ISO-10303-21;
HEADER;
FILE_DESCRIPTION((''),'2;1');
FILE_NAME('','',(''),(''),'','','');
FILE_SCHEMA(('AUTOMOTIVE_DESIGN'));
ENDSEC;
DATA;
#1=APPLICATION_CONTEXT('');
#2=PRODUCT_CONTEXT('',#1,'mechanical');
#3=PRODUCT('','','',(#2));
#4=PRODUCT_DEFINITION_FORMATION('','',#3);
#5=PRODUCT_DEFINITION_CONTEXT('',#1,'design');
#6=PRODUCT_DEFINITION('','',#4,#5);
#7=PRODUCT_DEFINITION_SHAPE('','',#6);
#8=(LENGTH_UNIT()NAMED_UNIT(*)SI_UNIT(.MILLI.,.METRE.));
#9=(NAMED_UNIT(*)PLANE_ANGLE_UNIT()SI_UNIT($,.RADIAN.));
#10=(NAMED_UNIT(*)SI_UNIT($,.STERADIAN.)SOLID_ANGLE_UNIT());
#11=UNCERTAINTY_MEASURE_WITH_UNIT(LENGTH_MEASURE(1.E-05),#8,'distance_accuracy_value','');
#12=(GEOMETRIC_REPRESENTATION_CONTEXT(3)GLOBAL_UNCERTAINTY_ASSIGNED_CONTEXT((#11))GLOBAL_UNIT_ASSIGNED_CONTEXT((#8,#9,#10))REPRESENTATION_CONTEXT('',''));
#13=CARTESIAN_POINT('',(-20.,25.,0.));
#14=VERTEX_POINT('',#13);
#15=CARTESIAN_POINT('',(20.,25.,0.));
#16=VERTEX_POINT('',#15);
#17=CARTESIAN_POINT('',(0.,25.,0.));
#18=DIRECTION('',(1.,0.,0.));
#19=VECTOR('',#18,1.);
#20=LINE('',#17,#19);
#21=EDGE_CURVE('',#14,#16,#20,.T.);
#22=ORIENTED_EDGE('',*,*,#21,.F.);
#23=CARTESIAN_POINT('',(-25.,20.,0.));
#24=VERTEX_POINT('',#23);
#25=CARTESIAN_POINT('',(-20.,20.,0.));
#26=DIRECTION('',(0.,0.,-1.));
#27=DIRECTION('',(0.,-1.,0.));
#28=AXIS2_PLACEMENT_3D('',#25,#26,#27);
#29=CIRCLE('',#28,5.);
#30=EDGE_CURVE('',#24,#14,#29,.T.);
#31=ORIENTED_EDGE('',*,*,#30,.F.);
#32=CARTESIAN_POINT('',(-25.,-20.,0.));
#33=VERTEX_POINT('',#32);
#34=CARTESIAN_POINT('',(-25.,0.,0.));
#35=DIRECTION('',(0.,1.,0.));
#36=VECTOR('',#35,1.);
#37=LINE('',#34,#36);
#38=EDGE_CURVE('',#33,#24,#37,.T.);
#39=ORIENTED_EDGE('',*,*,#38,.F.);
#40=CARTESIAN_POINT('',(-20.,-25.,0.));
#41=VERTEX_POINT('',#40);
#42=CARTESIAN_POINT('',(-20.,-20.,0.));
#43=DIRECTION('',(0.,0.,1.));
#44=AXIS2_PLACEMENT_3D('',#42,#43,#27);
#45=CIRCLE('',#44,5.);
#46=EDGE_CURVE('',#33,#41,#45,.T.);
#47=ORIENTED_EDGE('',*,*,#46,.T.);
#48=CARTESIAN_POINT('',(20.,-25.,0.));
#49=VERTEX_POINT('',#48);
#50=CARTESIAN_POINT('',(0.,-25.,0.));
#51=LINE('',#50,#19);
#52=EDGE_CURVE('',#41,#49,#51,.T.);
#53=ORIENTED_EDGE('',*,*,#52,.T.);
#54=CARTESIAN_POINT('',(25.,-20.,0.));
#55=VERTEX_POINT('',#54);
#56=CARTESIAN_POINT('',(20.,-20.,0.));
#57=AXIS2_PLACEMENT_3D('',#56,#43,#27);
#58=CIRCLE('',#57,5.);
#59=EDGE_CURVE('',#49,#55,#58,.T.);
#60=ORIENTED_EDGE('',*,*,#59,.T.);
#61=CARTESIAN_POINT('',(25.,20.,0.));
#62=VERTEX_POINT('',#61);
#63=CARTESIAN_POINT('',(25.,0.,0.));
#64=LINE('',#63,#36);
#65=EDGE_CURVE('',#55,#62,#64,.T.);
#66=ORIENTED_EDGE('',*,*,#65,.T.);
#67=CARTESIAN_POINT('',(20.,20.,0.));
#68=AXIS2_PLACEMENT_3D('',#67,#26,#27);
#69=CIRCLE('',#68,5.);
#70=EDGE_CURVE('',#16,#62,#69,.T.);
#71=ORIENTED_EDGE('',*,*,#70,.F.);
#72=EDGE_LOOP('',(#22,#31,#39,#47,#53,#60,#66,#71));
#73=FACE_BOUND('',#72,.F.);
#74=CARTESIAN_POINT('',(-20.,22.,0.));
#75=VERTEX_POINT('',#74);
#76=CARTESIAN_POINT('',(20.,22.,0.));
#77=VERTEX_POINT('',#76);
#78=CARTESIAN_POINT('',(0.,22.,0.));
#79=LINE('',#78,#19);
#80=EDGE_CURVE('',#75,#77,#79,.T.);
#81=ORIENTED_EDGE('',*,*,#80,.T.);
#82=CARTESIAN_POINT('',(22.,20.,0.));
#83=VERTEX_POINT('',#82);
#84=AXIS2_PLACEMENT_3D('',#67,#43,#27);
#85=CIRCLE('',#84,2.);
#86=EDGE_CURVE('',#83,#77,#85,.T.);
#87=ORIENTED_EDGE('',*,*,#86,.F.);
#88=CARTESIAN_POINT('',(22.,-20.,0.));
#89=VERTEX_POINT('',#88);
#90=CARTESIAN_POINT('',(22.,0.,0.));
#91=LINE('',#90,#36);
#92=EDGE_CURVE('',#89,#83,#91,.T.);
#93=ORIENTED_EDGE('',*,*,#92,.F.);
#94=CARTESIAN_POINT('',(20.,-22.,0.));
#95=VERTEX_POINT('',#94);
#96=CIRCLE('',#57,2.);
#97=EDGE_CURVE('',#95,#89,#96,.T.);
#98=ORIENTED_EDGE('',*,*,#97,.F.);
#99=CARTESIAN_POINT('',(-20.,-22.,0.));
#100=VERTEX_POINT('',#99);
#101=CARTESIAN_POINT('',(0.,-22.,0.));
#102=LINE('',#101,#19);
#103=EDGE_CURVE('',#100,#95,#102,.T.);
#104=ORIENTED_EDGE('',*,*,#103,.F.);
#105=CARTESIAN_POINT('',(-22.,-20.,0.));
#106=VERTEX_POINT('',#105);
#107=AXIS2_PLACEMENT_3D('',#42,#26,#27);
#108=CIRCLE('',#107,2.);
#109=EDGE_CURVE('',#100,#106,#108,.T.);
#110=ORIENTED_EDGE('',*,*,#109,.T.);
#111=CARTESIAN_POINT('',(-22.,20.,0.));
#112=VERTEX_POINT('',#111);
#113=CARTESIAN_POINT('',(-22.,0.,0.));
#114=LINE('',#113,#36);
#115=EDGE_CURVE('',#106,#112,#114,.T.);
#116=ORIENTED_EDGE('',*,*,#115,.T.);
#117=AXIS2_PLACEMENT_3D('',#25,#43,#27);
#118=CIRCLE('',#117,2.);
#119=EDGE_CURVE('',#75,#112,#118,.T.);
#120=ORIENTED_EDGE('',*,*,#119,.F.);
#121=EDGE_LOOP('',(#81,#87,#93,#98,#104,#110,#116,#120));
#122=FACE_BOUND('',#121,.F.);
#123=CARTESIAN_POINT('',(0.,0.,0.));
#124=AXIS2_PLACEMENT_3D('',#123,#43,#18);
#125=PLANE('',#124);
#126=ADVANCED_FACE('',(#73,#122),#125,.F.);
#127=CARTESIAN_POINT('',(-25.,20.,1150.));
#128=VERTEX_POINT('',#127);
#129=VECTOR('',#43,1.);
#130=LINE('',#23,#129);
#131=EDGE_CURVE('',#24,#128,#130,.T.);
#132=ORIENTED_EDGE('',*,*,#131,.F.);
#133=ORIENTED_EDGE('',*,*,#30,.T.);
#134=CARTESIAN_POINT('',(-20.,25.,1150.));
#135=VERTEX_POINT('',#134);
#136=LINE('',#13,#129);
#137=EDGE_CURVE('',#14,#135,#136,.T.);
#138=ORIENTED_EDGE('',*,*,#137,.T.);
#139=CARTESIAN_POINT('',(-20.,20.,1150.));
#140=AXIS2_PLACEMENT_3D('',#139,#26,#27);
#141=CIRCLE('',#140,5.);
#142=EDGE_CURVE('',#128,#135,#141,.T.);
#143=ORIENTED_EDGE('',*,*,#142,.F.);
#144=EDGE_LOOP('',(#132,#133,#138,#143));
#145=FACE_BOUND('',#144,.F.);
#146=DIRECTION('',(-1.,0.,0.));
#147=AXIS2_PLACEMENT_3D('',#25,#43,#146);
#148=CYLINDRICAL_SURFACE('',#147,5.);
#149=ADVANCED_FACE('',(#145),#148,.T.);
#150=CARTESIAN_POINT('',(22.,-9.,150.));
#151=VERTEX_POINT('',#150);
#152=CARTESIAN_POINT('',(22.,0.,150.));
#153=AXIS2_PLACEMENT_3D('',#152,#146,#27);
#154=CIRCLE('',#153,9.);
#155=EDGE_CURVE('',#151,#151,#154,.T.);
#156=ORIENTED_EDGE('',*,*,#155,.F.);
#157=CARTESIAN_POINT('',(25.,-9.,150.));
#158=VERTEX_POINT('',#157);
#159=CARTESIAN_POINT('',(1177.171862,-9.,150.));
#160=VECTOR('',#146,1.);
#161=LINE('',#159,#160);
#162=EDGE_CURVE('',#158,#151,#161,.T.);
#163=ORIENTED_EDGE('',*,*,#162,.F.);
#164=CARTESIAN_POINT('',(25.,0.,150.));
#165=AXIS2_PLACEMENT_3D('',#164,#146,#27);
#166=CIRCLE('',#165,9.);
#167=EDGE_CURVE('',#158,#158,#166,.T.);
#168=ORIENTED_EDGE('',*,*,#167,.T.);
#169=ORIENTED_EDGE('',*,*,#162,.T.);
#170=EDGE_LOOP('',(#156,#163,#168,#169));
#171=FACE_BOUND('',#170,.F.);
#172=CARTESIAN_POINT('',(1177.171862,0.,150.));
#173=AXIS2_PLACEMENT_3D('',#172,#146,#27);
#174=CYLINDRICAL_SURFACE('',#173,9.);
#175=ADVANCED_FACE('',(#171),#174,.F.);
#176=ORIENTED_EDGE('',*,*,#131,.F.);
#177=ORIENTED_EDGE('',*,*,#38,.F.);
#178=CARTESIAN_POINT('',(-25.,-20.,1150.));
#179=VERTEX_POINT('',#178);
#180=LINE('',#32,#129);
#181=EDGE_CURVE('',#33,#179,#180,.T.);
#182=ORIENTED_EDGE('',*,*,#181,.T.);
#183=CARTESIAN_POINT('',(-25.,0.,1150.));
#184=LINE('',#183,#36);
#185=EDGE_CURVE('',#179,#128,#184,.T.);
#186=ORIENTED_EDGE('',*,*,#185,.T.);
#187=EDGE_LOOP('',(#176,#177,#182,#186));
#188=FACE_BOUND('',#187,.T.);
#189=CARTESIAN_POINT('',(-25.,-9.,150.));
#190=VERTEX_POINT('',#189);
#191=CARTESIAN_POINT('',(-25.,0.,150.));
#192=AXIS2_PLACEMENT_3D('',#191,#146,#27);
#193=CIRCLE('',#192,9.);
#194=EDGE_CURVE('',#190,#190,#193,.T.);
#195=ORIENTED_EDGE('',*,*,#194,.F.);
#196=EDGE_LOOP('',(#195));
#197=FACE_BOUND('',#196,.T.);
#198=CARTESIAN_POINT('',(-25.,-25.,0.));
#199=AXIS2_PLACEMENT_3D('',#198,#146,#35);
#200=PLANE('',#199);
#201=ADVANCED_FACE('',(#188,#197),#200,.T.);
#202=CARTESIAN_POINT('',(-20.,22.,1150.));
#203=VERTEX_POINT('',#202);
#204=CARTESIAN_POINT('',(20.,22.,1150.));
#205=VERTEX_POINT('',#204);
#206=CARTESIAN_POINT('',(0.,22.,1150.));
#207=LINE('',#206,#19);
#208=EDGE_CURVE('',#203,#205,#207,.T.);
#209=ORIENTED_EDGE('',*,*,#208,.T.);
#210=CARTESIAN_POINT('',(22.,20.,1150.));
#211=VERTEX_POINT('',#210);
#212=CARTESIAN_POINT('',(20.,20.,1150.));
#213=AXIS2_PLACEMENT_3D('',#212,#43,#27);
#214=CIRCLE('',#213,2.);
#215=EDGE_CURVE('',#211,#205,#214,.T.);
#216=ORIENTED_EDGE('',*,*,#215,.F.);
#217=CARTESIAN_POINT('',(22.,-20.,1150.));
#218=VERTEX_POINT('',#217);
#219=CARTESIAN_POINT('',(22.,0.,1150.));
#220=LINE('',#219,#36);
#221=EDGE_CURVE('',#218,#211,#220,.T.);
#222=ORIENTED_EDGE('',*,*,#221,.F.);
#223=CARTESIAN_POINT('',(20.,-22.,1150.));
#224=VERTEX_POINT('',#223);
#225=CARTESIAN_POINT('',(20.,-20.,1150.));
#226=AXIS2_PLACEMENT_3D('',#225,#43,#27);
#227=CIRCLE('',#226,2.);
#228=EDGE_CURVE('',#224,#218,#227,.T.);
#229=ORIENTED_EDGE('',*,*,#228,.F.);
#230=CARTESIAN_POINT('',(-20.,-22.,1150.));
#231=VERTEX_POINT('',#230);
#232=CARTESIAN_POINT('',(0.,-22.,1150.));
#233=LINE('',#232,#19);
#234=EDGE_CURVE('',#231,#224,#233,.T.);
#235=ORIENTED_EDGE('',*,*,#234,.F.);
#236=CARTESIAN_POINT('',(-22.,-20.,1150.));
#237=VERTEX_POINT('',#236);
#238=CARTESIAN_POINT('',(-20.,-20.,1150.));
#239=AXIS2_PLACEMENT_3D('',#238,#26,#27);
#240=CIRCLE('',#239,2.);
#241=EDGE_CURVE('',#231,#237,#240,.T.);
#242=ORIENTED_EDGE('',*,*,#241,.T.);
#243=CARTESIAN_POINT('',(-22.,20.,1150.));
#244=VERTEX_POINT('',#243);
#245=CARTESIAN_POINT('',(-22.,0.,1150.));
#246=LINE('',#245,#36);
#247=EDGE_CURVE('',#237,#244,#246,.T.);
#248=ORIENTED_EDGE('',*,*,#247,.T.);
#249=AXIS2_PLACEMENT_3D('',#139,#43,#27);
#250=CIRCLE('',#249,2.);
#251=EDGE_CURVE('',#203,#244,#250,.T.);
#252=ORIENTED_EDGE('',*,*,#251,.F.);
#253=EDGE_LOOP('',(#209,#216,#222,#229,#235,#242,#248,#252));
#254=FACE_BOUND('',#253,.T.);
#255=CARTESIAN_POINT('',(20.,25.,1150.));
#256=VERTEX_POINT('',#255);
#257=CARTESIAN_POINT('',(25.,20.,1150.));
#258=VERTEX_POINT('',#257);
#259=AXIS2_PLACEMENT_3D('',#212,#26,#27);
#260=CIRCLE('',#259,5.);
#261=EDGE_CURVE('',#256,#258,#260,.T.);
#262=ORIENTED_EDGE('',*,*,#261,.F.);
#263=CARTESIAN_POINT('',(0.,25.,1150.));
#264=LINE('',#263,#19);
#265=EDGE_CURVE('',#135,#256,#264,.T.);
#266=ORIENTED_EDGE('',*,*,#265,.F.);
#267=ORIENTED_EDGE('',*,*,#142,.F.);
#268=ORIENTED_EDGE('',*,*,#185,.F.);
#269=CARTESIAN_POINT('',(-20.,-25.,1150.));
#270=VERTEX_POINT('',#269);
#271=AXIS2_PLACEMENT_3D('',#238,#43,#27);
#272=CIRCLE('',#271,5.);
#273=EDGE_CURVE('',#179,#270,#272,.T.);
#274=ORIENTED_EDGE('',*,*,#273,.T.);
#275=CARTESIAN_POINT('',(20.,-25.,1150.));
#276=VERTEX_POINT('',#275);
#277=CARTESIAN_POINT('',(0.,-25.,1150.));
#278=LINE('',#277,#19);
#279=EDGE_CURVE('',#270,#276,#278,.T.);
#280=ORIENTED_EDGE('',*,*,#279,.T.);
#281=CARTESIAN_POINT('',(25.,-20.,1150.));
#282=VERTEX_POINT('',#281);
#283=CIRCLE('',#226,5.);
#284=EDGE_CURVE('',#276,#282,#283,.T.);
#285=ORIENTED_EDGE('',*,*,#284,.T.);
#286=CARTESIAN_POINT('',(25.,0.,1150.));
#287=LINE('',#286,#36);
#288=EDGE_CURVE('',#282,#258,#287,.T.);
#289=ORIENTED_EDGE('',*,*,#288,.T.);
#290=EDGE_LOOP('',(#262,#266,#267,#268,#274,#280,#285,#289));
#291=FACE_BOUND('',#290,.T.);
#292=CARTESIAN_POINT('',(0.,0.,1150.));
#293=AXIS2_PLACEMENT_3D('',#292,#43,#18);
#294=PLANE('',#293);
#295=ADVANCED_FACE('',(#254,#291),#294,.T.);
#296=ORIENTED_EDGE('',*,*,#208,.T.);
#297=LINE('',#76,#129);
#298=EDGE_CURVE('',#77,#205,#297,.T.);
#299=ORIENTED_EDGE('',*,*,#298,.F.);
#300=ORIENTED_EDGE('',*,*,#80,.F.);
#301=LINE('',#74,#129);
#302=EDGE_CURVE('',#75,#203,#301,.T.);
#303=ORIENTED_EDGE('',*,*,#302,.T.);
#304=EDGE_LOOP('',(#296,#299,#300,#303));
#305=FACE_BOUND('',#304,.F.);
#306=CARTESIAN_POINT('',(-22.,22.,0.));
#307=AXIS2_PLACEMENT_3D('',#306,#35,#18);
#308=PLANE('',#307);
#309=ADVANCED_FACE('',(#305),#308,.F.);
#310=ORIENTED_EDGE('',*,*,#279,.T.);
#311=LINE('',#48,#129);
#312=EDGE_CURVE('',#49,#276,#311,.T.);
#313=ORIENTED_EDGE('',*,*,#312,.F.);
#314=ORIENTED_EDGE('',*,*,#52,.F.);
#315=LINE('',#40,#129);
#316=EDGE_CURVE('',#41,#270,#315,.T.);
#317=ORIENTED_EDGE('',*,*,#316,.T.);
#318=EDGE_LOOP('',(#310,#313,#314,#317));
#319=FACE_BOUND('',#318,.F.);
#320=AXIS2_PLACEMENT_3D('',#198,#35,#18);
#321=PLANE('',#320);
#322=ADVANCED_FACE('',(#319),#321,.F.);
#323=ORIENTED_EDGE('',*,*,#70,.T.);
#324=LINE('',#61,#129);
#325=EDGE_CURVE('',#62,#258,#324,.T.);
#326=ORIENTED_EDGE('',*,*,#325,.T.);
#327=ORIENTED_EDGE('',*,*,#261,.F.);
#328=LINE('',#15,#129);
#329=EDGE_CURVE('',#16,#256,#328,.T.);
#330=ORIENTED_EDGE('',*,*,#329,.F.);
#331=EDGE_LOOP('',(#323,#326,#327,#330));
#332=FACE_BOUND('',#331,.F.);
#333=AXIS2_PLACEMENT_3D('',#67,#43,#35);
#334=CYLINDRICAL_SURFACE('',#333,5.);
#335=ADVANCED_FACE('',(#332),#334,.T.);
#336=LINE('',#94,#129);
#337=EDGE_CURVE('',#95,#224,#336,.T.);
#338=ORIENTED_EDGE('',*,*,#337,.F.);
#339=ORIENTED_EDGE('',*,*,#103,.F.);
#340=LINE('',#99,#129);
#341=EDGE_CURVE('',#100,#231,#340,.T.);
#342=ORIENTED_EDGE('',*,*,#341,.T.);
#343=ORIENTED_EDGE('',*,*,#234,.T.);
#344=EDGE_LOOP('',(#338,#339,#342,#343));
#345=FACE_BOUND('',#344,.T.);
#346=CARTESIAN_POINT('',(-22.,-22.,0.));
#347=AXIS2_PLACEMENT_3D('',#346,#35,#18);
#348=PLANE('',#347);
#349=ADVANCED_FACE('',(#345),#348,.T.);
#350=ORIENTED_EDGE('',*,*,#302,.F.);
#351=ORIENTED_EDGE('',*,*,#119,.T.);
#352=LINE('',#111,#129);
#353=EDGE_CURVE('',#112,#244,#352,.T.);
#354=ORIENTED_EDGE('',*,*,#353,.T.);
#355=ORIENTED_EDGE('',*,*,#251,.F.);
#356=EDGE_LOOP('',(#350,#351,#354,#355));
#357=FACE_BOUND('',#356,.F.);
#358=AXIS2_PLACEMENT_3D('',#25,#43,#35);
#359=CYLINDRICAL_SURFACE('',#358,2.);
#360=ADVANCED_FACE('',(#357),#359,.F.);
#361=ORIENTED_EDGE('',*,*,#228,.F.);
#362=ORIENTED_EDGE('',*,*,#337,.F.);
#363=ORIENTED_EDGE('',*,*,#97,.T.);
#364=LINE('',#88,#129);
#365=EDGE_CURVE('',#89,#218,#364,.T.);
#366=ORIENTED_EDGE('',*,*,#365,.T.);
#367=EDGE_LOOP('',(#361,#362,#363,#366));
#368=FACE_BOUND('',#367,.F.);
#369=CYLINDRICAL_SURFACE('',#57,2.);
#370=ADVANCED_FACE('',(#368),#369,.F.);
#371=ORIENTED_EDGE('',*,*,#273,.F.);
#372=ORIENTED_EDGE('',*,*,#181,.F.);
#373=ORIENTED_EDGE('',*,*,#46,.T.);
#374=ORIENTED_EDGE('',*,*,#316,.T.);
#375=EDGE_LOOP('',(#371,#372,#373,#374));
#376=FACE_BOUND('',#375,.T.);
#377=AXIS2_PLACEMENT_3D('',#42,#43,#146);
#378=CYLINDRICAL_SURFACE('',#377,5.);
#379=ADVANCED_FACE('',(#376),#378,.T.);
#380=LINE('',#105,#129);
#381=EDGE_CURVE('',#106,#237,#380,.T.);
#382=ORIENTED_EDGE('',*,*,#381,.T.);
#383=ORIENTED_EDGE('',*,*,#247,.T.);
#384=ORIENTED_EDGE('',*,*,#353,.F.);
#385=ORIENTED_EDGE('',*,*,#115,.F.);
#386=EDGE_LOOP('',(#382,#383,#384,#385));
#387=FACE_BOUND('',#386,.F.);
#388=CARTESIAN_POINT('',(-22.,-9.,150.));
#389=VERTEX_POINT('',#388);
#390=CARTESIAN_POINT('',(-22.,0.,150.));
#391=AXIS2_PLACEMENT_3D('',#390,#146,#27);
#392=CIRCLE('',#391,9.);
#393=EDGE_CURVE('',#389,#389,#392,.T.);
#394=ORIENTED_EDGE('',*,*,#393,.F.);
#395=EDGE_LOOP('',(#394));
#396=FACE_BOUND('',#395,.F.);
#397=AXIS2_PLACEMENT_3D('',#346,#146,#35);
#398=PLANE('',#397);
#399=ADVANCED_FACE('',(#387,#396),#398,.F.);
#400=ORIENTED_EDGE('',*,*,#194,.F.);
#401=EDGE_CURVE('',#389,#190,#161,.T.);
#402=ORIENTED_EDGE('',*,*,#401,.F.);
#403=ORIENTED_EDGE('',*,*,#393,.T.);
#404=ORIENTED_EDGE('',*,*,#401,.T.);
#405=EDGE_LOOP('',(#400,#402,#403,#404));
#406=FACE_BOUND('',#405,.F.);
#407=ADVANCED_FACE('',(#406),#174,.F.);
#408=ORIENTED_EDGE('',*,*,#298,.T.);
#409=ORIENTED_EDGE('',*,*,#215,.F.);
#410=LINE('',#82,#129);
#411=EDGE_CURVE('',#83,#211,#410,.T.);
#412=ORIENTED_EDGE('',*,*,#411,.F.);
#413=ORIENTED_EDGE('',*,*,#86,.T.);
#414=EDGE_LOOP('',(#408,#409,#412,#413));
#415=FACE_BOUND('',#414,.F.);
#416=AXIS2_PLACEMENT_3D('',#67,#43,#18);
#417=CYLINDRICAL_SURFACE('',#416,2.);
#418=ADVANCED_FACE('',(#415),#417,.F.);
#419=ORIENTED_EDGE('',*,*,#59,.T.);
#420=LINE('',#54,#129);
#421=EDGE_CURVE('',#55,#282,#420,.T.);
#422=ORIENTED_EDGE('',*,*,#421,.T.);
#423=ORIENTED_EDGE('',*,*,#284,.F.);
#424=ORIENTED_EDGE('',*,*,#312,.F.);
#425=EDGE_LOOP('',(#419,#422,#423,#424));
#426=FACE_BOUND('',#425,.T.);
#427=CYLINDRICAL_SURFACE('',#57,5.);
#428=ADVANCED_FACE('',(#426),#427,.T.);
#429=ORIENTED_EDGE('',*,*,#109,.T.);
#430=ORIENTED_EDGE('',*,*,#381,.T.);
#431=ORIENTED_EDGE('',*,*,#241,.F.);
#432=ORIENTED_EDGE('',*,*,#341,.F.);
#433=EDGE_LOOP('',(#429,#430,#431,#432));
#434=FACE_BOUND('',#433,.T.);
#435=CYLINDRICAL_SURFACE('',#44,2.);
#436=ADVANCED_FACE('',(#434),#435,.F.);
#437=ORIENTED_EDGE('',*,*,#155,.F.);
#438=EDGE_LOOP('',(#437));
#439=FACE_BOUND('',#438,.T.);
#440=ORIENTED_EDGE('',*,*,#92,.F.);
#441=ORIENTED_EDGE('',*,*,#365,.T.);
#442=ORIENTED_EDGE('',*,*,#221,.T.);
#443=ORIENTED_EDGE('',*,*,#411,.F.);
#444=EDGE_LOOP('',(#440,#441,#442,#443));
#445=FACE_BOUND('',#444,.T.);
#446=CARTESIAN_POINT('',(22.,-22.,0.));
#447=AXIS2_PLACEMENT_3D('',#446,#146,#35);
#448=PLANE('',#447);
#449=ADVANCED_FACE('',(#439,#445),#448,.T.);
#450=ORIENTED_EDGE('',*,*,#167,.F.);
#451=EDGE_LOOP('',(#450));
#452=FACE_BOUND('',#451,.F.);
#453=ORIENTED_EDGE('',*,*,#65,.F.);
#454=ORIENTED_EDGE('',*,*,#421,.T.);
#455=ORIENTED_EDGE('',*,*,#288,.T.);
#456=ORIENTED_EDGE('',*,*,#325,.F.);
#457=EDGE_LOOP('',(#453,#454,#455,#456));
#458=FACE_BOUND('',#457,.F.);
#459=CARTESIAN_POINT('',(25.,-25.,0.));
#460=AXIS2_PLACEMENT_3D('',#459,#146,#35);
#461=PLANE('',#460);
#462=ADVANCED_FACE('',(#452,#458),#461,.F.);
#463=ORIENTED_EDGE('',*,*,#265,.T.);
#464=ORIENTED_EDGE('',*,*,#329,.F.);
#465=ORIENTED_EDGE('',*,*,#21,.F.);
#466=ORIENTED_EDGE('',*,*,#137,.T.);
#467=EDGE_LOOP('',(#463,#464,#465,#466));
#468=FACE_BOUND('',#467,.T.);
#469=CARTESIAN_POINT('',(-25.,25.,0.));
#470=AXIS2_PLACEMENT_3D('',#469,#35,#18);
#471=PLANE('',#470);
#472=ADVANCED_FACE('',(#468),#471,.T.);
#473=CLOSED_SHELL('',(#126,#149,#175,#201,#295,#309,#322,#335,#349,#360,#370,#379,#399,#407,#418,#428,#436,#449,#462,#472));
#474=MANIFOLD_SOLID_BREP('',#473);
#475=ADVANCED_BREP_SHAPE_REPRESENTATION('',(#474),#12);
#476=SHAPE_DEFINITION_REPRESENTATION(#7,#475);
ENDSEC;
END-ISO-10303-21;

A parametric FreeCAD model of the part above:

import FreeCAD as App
import Part
import Sketcher
from FreeCAD import Vector
Q = App.Units.Quantity


def edges_at(feature, points):
    """Names of the edges that pass closest to the given points."""
    edges = feature.Shape.Edges
    near = lambda p: min(range(len(edges)), key=lambda i: edges[i].distToShape(Part.Vertex(*p))[0])
    return sorted({f"Edge{near(p) + 1}" for p in points})


def add_polygon(sketch, points):
    """Adds a closed chain of lines whose ends are joined by coincident constraints."""
    first, n = sketch.GeometryCount, len(points)
    for a, b in zip(points, points[1:] + points[:1]):
        sketch.addGeometry(Part.LineSegment(App.Vector(*a, 0), App.Vector(*b, 0)), False)
    for i in range(n):
        sketch.addConstraint(Sketcher.Constraint("Coincident", first + i, 2, first + (i + 1) % n, 1))

doc = App.newDocument("Part")
body = doc.addObject("PartDesign::Body", "Body")

sketch1 = body.newObject("Sketcher::SketchObject", "Sketch")
sketch1.AttachmentSupport = (doc.getObject("XY_Plane"), [""])
sketch1.MapMode = "FlatFace"
add_polygon(sketch1, [(-25, 25), (-25, -25), (25, -25), (25, 25)])
add_polygon(sketch1, [(22, -22), (-22, -22), (-22, 22), (22, 22)])
sketch1.addConstraint(Sketcher.Constraint("Vertical", 0))
sketch1.addConstraint(Sketcher.Constraint("Horizontal", 1))
sketch1.addConstraint(Sketcher.Constraint("Vertical", 2))
sketch1.addConstraint(Sketcher.Constraint("Horizontal", 3))
sketch1.addConstraint(Sketcher.Constraint("Horizontal", 4))
sketch1.addConstraint(Sketcher.Constraint("Vertical", 5))
sketch1.addConstraint(Sketcher.Constraint("Horizontal", 6))
sketch1.addConstraint(Sketcher.Constraint("Vertical", 7))
sketch1.addConstraint(Sketcher.Constraint("Symmetric", 0, 2, 2, 2, -1, 1))
sketch1.addConstraint(Sketcher.Constraint("Symmetric", 4, 2, 6, 2, -1, 1))
sketch1.addConstraint(Sketcher.Constraint("Equal", 3, 0))
sketch1.addConstraint(Sketcher.Constraint("Equal", 6, 5))
sketch1.addConstraint(Sketcher.Constraint("DistanceX", 1, 1, 1, 2, Q("50 mm")))
sketch1.addConstraint(Sketcher.Constraint("DistanceX", 4, 2, 4, 1, Q("44 mm")))
pad1 = body.newObject("PartDesign::Pad", "Pad")
pad1.Profile = sketch1
pad1.Length = 1150
doc.recompute()

fillet = body.newObject("PartDesign::Fillet", "Fillet")
fillet.Base = (pad1, edges_at(pad1, [
    (22, 22, 575),
    (-22, -22, 575),
    (-22, 22, 575),
    (22, -22, 575),
]))
fillet.Radius = 2
doc.recompute()

fillet2 = body.newObject("PartDesign::Fillet", "Fillet001")
fillet2.Base = (fillet, edges_at(fillet, [
    (-25, 25, 575),
    (25, 25, 575),
    (-25, -25, 575),
    (25, -25, 575),
]))
fillet2.Radius = 5

sketch2 = body.newObject("Sketcher::SketchObject", "Sketch001")
sketch2.AttachmentSupport = (doc.getObject("YZ_Plane"), [""])
sketch2.MapMode = "FlatFace"
sketch2.AttachmentOffset = App.Placement(Vector(0, 0, 25), App.Rotation())
sketch2.addGeometry(Part.Circle(Vector(0, 150, 0), Vector(0, 0, 1), 9), False)
sketch2.addConstraint(Sketcher.Constraint("PointOnObject", 0, 3, -2))
sketch2.addConstraint(Sketcher.Constraint("Diameter", 0, Q("18 mm")))
sketch2.addConstraint(Sketcher.Constraint("DistanceY", -1, 1, 0, 3, Q("150 mm")))
doc.recompute()
hole = body.newObject("PartDesign::Hole", "Hole")
hole.Profile = sketch2
hole.ThreadType = "None"
hole.Diameter = 18
hole.DepthType = "ThroughAll"

doc.recompute()
